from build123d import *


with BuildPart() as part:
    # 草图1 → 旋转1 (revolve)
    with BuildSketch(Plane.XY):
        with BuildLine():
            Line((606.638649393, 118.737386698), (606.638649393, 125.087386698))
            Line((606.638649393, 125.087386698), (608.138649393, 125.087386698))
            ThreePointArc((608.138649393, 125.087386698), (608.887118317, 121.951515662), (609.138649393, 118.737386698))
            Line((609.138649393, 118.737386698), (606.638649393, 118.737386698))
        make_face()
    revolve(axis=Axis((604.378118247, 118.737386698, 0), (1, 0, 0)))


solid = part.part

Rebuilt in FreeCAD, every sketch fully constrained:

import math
import FreeCAD as App
import Part
import Sketcher
Q = App.Units.Quantity

doc = App.newDocument("Part")
body = doc.addObject("PartDesign::Body", "Body")

sketch1 = doc.addObject("Sketcher::SketchObject", "Sketch")
body.addObject(sketch1)
sketch1.AttachmentSupport = (doc.XY_Plane, [""])
sketch1.MapMode = "FlatFace"
sketch1.addGeometry([
    Part.LineSegment(App.Vector(606.638649, 125.087387, 0), App.Vector(606.638649, 118.737387, 0)),
    Part.LineSegment(App.Vector(606.638649, 118.737387, 0), App.Vector(609.138649, 118.737387, 0)),
    Part.ArcOfCircle(Part.Circle(App.Vector(588.477399, 118.737387, 0), App.Vector(0, 0, 1), 20.66125), math.radians(0), math.radians(17.898916)),
    Part.LineSegment(App.Vector(608.138649, 125.087387, 0), App.Vector(606.638649, 125.087387, 0)),
], False)
sketch1.addGeometry(Part.LineSegment(App.Vector(588.477399, 118.737387, 0), App.Vector(609.138649, 118.737387, 0)), True)
sketch1.addConstraint([
    Sketcher.Constraint("Coincident", 0, 2, 1, 1),
    Sketcher.Constraint("Coincident", 1, 2, 2, 1),
    Sketcher.Constraint("Coincident", 2, 2, 3, 1),
    Sketcher.Constraint("Coincident", 3, 2, 0, 1),
    Sketcher.Constraint("Vertical", 0),
    Sketcher.Constraint("Horizontal", 1),
    Sketcher.Constraint("Horizontal", 3),
    Sketcher.Constraint("Horizontal", 4),
    Sketcher.Constraint("Coincident", 4, 1, 2, 3),
    Sketcher.Constraint("Coincident", 4, 2, 1, 2),
    Sketcher.Constraint("DistanceX", 1, 1, 1, 2, Q("2.5 mm")),
    Sketcher.Constraint("DistanceX", 3, 2, 3, 1, Q("1.5 mm")),
    Sketcher.Constraint("DistanceY", 0, 2, 0, 1, Q("6.35 mm")),
    Sketcher.Constraint("DistanceX", -1, 1, 2, 3, Q("588.477399 mm")),
    Sketcher.Constraint("DistanceY", -1, 1, 2, 3, Q("118.737387 mm")),
])
revolution = doc.addObject("PartDesign::Revolution", "Revolution")
body.addObject(revolution)
revolution.Profile = sketch1
revolution.ReferenceAxis = (sketch1, ["Axis0"])
revolution.Angle = 360

doc.recompute()
